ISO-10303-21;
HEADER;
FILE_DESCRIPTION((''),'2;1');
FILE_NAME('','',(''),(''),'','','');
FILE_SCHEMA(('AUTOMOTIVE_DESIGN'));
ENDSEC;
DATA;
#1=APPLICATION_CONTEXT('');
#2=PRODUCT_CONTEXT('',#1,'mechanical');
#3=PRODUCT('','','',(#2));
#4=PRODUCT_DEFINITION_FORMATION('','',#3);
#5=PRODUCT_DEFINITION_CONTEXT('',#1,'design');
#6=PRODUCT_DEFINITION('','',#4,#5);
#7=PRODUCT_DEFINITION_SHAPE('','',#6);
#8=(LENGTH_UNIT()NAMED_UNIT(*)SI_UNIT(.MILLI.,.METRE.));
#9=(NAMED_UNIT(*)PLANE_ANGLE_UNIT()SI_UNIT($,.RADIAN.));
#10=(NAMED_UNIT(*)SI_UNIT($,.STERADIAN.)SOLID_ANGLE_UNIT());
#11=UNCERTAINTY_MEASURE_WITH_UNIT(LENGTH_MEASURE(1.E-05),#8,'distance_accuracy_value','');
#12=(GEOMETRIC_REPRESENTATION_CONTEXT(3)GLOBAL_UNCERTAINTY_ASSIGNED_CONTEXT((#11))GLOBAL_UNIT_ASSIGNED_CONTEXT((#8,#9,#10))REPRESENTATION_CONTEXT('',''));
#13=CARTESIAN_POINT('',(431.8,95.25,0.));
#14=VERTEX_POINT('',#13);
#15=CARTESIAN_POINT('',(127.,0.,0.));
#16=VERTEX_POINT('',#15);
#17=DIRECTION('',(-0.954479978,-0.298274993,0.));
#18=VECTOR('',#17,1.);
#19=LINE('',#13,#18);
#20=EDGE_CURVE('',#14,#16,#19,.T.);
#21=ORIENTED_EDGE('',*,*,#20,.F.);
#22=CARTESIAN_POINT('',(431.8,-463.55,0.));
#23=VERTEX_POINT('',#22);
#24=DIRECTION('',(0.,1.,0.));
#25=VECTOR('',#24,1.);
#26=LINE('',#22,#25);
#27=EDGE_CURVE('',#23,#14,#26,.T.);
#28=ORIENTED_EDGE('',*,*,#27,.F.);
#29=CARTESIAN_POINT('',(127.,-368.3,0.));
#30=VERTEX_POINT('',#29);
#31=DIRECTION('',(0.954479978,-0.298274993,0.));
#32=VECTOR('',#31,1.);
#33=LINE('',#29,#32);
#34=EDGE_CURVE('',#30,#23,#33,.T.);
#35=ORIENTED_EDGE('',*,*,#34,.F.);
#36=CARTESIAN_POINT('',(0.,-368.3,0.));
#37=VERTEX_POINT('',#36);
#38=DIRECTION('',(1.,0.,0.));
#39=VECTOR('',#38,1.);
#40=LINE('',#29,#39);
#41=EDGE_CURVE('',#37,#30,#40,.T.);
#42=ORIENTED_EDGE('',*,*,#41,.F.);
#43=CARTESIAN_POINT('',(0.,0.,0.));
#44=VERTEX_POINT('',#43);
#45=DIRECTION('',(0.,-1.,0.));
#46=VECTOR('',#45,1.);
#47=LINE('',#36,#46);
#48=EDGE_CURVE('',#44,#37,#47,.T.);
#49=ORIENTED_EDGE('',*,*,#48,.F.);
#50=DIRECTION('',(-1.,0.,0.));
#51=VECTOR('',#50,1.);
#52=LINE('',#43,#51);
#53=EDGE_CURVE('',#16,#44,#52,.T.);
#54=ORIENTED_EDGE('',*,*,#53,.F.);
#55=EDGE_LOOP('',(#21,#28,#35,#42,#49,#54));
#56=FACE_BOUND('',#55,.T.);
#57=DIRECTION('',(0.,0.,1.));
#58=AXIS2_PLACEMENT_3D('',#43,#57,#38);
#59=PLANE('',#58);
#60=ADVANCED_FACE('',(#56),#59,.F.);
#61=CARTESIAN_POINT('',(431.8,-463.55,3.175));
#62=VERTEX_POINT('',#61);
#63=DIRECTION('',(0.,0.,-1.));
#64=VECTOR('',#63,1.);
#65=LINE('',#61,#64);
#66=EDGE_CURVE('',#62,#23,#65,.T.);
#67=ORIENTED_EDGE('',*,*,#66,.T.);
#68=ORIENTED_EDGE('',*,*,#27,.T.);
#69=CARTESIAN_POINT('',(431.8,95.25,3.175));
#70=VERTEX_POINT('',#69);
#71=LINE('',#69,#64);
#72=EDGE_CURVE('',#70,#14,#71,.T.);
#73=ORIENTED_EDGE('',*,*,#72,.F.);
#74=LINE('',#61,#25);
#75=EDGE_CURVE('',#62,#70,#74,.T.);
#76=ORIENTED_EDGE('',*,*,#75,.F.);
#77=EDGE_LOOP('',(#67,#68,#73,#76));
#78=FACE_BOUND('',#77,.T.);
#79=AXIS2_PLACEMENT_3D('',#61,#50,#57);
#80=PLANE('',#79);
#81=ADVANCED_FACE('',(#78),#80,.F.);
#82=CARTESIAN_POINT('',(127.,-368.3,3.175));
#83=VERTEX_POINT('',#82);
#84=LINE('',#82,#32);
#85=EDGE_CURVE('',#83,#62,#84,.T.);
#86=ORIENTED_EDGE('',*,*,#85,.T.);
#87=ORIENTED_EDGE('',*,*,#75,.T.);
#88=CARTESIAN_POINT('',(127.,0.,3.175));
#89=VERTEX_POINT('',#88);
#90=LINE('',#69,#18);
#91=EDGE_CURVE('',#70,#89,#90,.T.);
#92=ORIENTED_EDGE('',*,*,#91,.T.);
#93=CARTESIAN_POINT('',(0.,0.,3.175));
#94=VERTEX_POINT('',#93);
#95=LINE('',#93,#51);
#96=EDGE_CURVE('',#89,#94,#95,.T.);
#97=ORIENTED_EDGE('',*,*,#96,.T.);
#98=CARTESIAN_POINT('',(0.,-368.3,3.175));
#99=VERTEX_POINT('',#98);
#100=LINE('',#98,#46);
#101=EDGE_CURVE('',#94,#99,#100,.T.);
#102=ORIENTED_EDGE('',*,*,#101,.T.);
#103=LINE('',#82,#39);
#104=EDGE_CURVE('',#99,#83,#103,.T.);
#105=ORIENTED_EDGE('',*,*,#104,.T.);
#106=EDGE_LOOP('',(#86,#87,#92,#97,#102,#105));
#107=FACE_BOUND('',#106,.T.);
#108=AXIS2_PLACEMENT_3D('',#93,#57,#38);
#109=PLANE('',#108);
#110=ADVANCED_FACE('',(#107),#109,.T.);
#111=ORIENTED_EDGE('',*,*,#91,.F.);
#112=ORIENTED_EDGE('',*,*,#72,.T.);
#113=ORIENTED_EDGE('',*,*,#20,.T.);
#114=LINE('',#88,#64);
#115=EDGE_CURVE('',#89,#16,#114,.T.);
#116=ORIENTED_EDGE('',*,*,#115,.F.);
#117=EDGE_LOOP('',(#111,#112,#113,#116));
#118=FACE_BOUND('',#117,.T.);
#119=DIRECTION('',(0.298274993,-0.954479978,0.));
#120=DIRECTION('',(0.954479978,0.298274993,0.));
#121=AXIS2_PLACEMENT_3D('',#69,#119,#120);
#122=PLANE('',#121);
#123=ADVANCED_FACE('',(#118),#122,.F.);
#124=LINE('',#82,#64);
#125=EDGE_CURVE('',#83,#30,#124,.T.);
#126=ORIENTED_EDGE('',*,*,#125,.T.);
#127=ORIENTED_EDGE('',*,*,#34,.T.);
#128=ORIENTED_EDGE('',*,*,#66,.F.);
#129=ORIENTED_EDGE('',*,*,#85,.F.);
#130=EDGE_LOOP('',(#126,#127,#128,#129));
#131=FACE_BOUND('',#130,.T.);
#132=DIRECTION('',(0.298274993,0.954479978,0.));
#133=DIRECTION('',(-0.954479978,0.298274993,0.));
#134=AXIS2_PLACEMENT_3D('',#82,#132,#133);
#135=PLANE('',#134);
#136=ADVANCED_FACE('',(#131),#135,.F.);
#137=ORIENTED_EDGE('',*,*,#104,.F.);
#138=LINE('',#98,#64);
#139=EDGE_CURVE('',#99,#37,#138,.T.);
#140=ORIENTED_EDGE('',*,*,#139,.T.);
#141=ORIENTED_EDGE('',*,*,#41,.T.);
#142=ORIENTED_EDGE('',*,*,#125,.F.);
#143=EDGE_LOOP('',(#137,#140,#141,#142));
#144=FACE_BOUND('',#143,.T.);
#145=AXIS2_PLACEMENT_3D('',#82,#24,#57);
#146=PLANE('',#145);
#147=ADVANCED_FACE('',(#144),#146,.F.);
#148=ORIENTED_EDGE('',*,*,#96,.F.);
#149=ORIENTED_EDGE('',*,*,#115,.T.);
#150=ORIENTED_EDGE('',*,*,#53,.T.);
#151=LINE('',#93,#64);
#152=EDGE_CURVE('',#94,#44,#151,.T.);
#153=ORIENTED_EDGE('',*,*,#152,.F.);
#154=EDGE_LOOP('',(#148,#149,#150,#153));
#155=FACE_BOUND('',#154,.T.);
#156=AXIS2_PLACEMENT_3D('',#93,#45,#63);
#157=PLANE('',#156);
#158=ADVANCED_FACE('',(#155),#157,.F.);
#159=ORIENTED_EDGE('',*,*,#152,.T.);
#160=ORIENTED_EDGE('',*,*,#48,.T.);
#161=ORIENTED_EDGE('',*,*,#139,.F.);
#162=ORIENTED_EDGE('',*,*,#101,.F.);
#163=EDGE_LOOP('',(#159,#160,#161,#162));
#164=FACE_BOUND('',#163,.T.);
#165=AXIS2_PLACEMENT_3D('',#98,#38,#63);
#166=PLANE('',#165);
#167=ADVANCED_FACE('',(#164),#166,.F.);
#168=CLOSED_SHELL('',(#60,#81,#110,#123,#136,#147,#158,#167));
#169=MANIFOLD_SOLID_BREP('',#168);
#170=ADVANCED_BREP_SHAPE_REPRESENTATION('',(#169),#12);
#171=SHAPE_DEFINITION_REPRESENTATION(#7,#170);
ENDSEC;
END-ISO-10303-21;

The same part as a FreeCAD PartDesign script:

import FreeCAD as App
import Part
import Sketcher

V = App.Vector
Q = App.Units.Quantity

doc = App.newDocument("Part")
body = doc.addObject("PartDesign::Body", "Body")

sketch1 = body.newObject("Sketcher::SketchObject", "Sketch")
sketch1.AttachmentSupport = (doc.getObject("XY_Plane"), [""])
sketch1.MapMode = "FlatFace"
sketch1.addGeometry([
    Part.LineSegment(V(0, -368, 0), V(127, -368, 0)),
    Part.LineSegment(V(127, -368, 0), V(432, -464, 0)),
    Part.LineSegment(V(432, -464, 0), V(432, 95, 0)),
    Part.LineSegment(V(432, 95, 0), V(127, 0, 0)),
    Part.LineSegment(V(127, 0, 0), V(0, 0, 0)),
    Part.LineSegment(V(0, 0, 0), V(0, -368, 0)),
], False)
sketch1.addConstraint([
    Sketcher.Constraint("Coincident", 0, 2, 1, 1),
    Sketcher.Constraint("Coincident", 1, 2, 2, 1),
    Sketcher.Constraint("Coincident", 2, 2, 3, 1),
    Sketcher.Constraint("Coincident", 3, 2, 4, 1),
    Sketcher.Constraint("Coincident", 4, 2, 5, 1),
    Sketcher.Constraint("Coincident", 5, 2, 0, 1),
    Sketcher.Constraint("Horizontal", 0),
    Sketcher.Constraint("Vertical", 2),
    Sketcher.Constraint("Horizontal", 4),
    Sketcher.Constraint("Vertical", 5),
    Sketcher.Constraint("Coincident", 4, 2, -1, 1),
    Sketcher.Constraint("Vertical", 0, 2, 3, 2),
    Sketcher.Constraint("Equal", 1, 3),
    Sketcher.Constraint("DistanceX", 0, 1, 0, 2, Q("5 in")),
    Sketcher.Constraint("DistanceY", 2, 1, 2, 2, Q("22 in")),
    Sketcher.Constraint("DistanceY", 5, 2, 5, 1, Q("14.5 in")),
    Sketcher.Constraint("DistanceX", -1, 1, 1, 2, Q("17 in")),
])
pad1 = body.newObject("PartDesign::Pad", "Pad")
pad1.Profile = sketch1
pad1.Length = Q("0.125 in")

doc.recompute()
